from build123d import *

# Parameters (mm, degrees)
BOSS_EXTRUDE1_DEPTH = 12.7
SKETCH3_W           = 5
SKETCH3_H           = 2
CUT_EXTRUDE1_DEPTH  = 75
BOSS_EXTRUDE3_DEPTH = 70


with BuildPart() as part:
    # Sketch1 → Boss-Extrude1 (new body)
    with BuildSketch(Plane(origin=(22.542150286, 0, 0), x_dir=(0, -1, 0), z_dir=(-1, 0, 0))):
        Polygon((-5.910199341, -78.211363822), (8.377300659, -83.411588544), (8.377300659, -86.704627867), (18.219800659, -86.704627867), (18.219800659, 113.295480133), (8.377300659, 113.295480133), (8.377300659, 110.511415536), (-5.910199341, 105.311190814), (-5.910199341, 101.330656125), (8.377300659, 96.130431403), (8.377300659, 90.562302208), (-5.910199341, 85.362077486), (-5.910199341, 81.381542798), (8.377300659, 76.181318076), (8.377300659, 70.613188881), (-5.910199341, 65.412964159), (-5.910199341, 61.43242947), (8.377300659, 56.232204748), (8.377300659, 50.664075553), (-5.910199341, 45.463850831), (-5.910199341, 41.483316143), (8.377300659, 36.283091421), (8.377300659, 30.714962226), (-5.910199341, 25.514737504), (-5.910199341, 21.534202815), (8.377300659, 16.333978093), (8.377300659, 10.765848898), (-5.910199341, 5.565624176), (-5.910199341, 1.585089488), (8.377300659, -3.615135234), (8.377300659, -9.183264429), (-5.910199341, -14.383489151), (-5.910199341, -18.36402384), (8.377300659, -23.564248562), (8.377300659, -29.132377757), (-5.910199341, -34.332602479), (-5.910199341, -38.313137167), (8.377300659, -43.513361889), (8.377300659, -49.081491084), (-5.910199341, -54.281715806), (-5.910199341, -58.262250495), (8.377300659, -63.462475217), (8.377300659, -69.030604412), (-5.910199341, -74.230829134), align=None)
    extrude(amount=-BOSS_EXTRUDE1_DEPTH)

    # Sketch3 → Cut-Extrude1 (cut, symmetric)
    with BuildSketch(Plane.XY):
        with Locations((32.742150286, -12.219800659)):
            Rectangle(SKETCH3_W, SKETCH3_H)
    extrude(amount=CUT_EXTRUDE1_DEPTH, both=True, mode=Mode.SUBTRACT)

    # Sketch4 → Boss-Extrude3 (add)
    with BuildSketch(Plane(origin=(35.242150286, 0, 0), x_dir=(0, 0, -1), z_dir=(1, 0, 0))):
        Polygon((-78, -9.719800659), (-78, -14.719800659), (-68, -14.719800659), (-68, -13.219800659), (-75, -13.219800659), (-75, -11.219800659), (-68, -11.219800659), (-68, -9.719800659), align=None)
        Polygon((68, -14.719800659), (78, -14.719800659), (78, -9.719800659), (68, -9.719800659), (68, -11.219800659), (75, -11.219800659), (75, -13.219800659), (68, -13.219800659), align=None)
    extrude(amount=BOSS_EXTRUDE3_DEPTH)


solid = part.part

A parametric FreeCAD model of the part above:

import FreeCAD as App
import Part
import Sketcher

V = App.Vector
Q = App.Units.Quantity


def add_polygon(sketch, points):
    """Adds a closed chain of lines whose ends are joined by coincident constraints."""
    first, n = sketch.GeometryCount, len(points)
    for a, b in zip(points, points[1:] + points[:1]):
        sketch.addGeometry(Part.LineSegment(App.Vector(*a, 0), App.Vector(*b, 0)), False)
    for i in range(n):
        sketch.addConstraint(Sketcher.Constraint("Coincident", first + i, 2, first + (i + 1) % n, 1))

doc = App.newDocument("Part")
body = doc.addObject("PartDesign::Body", "Body")

sketch1 = body.newObject("Sketcher::SketchObject", "Sketch")
sketch1.AttachmentSupport = (doc.getObject("YZ_Plane"), [""])
sketch1.MapMode = "FlatFace"
sketch1.AttachmentOffset = App.Placement(V(0, 0, 22.54215), App.Rotation())
add_polygon(sketch1, [(5.910199, -78.211364), (-8.377301, -83.411589), (-8.377301, -86.704628), (-18.219801, -86.704628), (-18.219801, 113.29548), (-8.377301, 113.29548), (-8.377301, 110.511416), (5.910199, 105.311191), (5.910199, 101.330656), (-8.377301, 96.130431), (-8.377301, 90.562302), (5.910199, 85.362077), (5.910199, 81.381543), (-8.377301, 76.181318), (-8.377301, 70.613189), (5.910199, 65.412964), (5.910199, 61.432429), (-8.377301, 56.232205), (-8.377301, 50.664076), (5.910199, 45.463851), (5.910199, 41.483316), (-8.377301, 36.283091), (-8.377301, 30.714962), (5.910199, 25.514738), (5.910199, 21.534203), (-8.377301, 16.333978), (-8.377301, 10.765849), (5.910199, 5.565624), (5.910199, 1.585089), (-8.377301, -3.615135), (-8.377301, -9.183264), (5.910199, -14.383489), (5.910199, -18.364024), (-8.377301, -23.564249), (-8.377301, -29.132378), (5.910199, -34.332602), (5.910199, -38.313137), (-8.377301, -43.513362), (-8.377301, -49.081491), (5.910199, -54.281716), (5.910199, -58.26225), (-8.377301, -63.462475), (-8.377301, -69.030604), (5.910199, -74.230829)])
sketch1.addConstraint(Sketcher.Constraint("Vertical", 1))
sketch1.addConstraint(Sketcher.Constraint("Horizontal", 2))
sketch1.addConstraint(Sketcher.Constraint("Vertical", 3))
sketch1.addConstraint(Sketcher.Constraint("Horizontal", 4))
sketch1.addConstraint(Sketcher.Constraint("Vertical", 5))
sketch1.addConstraint(Sketcher.Constraint("Vertical", 7))
sketch1.addConstraint(Sketcher.Constraint("Vertical", 9))
sketch1.addConstraint(Sketcher.Constraint("Vertical", 11))
sketch1.addConstraint(Sketcher.Constraint("Vertical", 13))
sketch1.addConstraint(Sketcher.Constraint("Vertical", 15))
sketch1.addConstraint(Sketcher.Constraint("Vertical", 17))
sketch1.addConstraint(Sketcher.Constraint("Vertical", 19))
sketch1.addConstraint(Sketcher.Constraint("Vertical", 21))
sketch1.addConstraint(Sketcher.Constraint("Vertical", 23))
sketch1.addConstraint(Sketcher.Constraint("Vertical", 25))
sketch1.addConstraint(Sketcher.Constraint("Vertical", 27))
sketch1.addConstraint(Sketcher.Constraint("Vertical", 29))
sketch1.addConstraint(Sketcher.Constraint("Vertical", 31))
sketch1.addConstraint(Sketcher.Constraint("Vertical", 33))
sketch1.addConstraint(Sketcher.Constraint("Vertical", 35))
sketch1.addConstraint(Sketcher.Constraint("Vertical", 37))
sketch1.addConstraint(Sketcher.Constraint("Vertical", 39))
sketch1.addConstraint(Sketcher.Constraint("Vertical", 41))
sketch1.addConstraint(Sketcher.Constraint("Vertical", 43))
sketch1.addConstraint(Sketcher.Constraint("Parallel", 0, 8))
sketch1.addConstraint(Sketcher.Constraint("Parallel", 6, 10))
sketch1.addConstraint(Sketcher.Constraint("Parallel", 8, 12))
sketch1.addConstraint(Sketcher.Constraint("Parallel", 10, 14))
sketch1.addConstraint(Sketcher.Constraint("Parallel", 12, 16))
sketch1.addConstraint(Sketcher.Constraint("Parallel", 14, 18))
sketch1.addConstraint(Sketcher.Constraint("Parallel", 16, 20))
sketch1.addConstraint(Sketcher.Constraint("Parallel", 18, 22))
sketch1.addConstraint(Sketcher.Constraint("Parallel", 20, 24))
sketch1.addConstraint(Sketcher.Constraint("Parallel", 22, 26))
sketch1.addConstraint(Sketcher.Constraint("Parallel", 24, 28))
sketch1.addConstraint(Sketcher.Constraint("Parallel", 26, 30))
sketch1.addConstraint(Sketcher.Constraint("Parallel", 28, 32))
sketch1.addConstraint(Sketcher.Constraint("Parallel", 30, 34))
sketch1.addConstraint(Sketcher.Constraint("Parallel", 32, 36))
sketch1.addConstraint(Sketcher.Constraint("Parallel", 34, 38))
sketch1.addConstraint(Sketcher.Constraint("Parallel", 36, 40))
sketch1.addConstraint(Sketcher.Constraint("Parallel", 38, 42))
sketch1.addConstraint(Sketcher.Constraint("Vertical", 1, 2, 4, 2))
sketch1.addConstraint(Sketcher.Constraint("Vertical", 5, 2, 8, 2))
sketch1.addConstraint(Sketcher.Constraint("Vertical", 7, 2, 10, 2))
sketch1.addConstraint(Sketcher.Constraint("Vertical", 9, 2, 12, 2))
sketch1.addConstraint(Sketcher.Constraint("Vertical", 11, 2, 14, 2))
sketch1.addConstraint(Sketcher.Constraint("Vertical", 13, 2, 16, 2))
sketch1.addConstraint(Sketcher.Constraint("Vertical", 15, 2, 18, 2))
sketch1.addConstraint(Sketcher.Constraint("Vertical", 17, 2, 20, 2))
sketch1.addConstraint(Sketcher.Constraint("Vertical", 19, 2, 22, 2))
sketch1.addConstraint(Sketcher.Constraint("Vertical", 21, 2, 24, 2))
sketch1.addConstraint(Sketcher.Constraint("Vertical", 23, 2, 26, 2))
sketch1.addConstraint(Sketcher.Constraint("Vertical", 25, 2, 28, 2))
sketch1.addConstraint(Sketcher.Constraint("Vertical", 27, 2, 30, 2))
sketch1.addConstraint(Sketcher.Constraint("Vertical", 29, 2, 32, 2))
sketch1.addConstraint(Sketcher.Constraint("Vertical", 31, 2, 34, 2))
sketch1.addConstraint(Sketcher.Constraint("Vertical", 33, 2, 36, 2))
sketch1.addConstraint(Sketcher.Constraint("Vertical", 35, 2, 38, 2))
sketch1.addConstraint(Sketcher.Constraint("Vertical", 37, 2, 40, 2))
sketch1.addConstraint(Sketcher.Constraint("Vertical", 39, 2, 42, 2))
sketch1.addConstraint(Sketcher.Constraint("Equal", 7, 11))
sketch1.addConstraint(Sketcher.Constraint("Equal", 9, 13))
sketch1.addConstraint(Sketcher.Constraint("Equal", 11, 15))
sketch1.addConstraint(Sketcher.Constraint("Equal", 13, 17))
sketch1.addConstraint(Sketcher.Constraint("Equal", 15, 19))
sketch1.addConstraint(Sketcher.Constraint("Equal", 17, 21))
sketch1.addConstraint(Sketcher.Constraint("Equal", 19, 23))
sketch1.addConstraint(Sketcher.Constraint("Equal", 21, 25))
sketch1.addConstraint(Sketcher.Constraint("Equal", 23, 27))
sketch1.addConstraint(Sketcher.Constraint("Equal", 25, 29))
sketch1.addConstraint(Sketcher.Constraint("Equal", 27, 31))
sketch1.addConstraint(Sketcher.Constraint("Equal", 29, 33))
sketch1.addConstraint(Sketcher.Constraint("Equal", 31, 35))
sketch1.addConstraint(Sketcher.Constraint("Equal", 33, 37))
sketch1.addConstraint(Sketcher.Constraint("Equal", 35, 39))
sketch1.addConstraint(Sketcher.Constraint("Equal", 37, 41))
sketch1.addConstraint(Sketcher.Constraint("Equal", 39, 43))
sketch1.addConstraint(Sketcher.Constraint("Equal", 0, 6))
sketch1.addConstraint(Sketcher.Constraint("Angle", 0, Q("-160 deg")))
sketch1.addConstraint(Sketcher.Constraint("DistanceX", 3, 2, 6, 2, Q("24.13 mm")))
sketch1.addConstraint(Sketcher.Constraint("DistanceX", 2, 2, 2, 1, Q("9.8425 mm")))
sketch1.addConstraint(Sketcher.Constraint("DistanceY", 1, 2, 1, 1, Q("3.293039 mm")))
sketch1.addConstraint(Sketcher.Constraint("DistanceY", 3, 1, 3, 2, Q("200.000108 mm")))
sketch1.addConstraint(Sketcher.Constraint("DistanceY", 9, 2, 9, 1, Q("5.568129 mm")))
sketch1.addConstraint(Sketcher.Constraint("DistanceX", 0, 2, -1, 1, Q("8.377301 mm")))
sketch1.addConstraint(Sketcher.Constraint("DistanceY", 1, 2, 42, 2, Q("12.473799 mm")))
sketch1.addConstraint(Sketcher.Constraint("DistanceY", 0, 2, -1, 1, Q("83.411589 mm")))
pad1 = body.newObject("PartDesign::Pad", "Pad")
pad1.Profile = sketch1
pad1.Length = 12.7

sketch2 = body.newObject("Sketcher::SketchObject", "Sketch001")
sketch2.AttachmentSupport = (doc.getObject("XY_Plane"), [""])
sketch2.MapMode = "FlatFace"
add_polygon(sketch2, [(30.24215, -11.219801), (30.24215, -13.219801), (35.24215, -13.219801), (35.24215, -11.219801)])
sketch2.addConstraint(Sketcher.Constraint("Vertical", 0))
sketch2.addConstraint(Sketcher.Constraint("Horizontal", 1))
sketch2.addConstraint(Sketcher.Constraint("Vertical", 2))
sketch2.addConstraint(Sketcher.Constraint("Horizontal", 3))
sketch2.addConstraint(Sketcher.Constraint("DistanceX", 1, 1, 1, 2, Q("5 mm")))
sketch2.addConstraint(Sketcher.Constraint("DistanceY", 0, 2, 0, 1, Q("2 mm")))
sketch2.addConstraint(Sketcher.Constraint("DistanceY", 0, 2, -1, 1, Q("13.219801 mm")))
sketch2.addConstraint(Sketcher.Constraint("DistanceX", -1, 1, 0, 2, Q("30.24215 mm")))
pocket1 = body.newObject("PartDesign::Pocket", "Pocket")
pocket1.Profile = sketch2
pocket1.Length = 150
pocket1.Midplane = True

sketch3 = body.newObject("Sketcher::SketchObject", "Sketch002")
sketch3.AttachmentSupport = (doc.getObject("YZ_Plane"), [""])
sketch3.MapMode = "FlatFace"
sketch3.AttachmentOffset = App.Placement(V(0, 0, 35.24215), App.Rotation())
add_polygon(sketch3, [(-9.719801, 78), (-14.719801, 78), (-14.719801, 68), (-13.219801, 68), (-13.219801, 75), (-11.219801, 75), (-11.219801, 68), (-9.719801, 68)])
add_polygon(sketch3, [(-14.719801, -68), (-14.719801, -78), (-9.719801, -78), (-9.719801, -68), (-11.219801, -68), (-11.219801, -75), (-13.219801, -75), (-13.219801, -68)])
sketch3.addConstraint(Sketcher.Constraint("Horizontal", 0))
sketch3.addConstraint(Sketcher.Constraint("Vertical", 1))
sketch3.addConstraint(Sketcher.Constraint("Horizontal", 2))
sketch3.addConstraint(Sketcher.Constraint("Vertical", 3))
sketch3.addConstraint(Sketcher.Constraint("Horizontal", 4))
sketch3.addConstraint(Sketcher.Constraint("Vertical", 5))
sketch3.addConstraint(Sketcher.Constraint("Horizontal", 6))
sketch3.addConstraint(Sketcher.Constraint("Vertical", 7))
sketch3.addConstraint(Sketcher.Constraint("Vertical", 8))
sketch3.addConstraint(Sketcher.Constraint("Horizontal", 9))
sketch3.addConstraint(Sketcher.Constraint("Vertical", 10))
sketch3.addConstraint(Sketcher.Constraint("Horizontal", 11))
sketch3.addConstraint(Sketcher.Constraint("Vertical", 12))
sketch3.addConstraint(Sketcher.Constraint("Horizontal", 13))
sketch3.addConstraint(Sketcher.Constraint("Vertical", 14))
sketch3.addConstraint(Sketcher.Constraint("Horizontal", 15))
sketch3.addConstraint(Sketcher.Constraint("Symmetric", 0, 2, 8, 2, -1))
sketch3.addConstraint(Sketcher.Constraint("Symmetric", 6, 2, 10, 2, -1))
sketch3.addConstraint(Sketcher.Constraint("Symmetric", 4, 2, 12, 2, -1))
sketch3.addConstraint(Sketcher.Constraint("Symmetric", 2, 2, 14, 2, -1))
sketch3.addConstraint(Sketcher.Constraint("Horizontal", 2, 2, 5, 2))
sketch3.addConstraint(Sketcher.Constraint("Equal", 2, 6))
sketch3.addConstraint(Sketcher.Constraint("DistanceX", 0, 2, 0, 1, Q("5 mm")))
sketch3.addConstraint(Sketcher.Constraint("DistanceX", 4, 1, 4, 2, Q("2 mm")))
sketch3.addConstraint(Sketcher.Constraint("DistanceY", 1, 2, 1, 1, Q("10 mm")))
sketch3.addConstraint(Sketcher.Constraint("DistanceY", 3, 1, 3, 2, Q("7 mm")))
sketch3.addConstraint(Sketcher.Constraint("DistanceY", -1, 1, 0, 2, Q("78 mm")))
sketch3.addConstraint(Sketcher.Constraint("DistanceX", 0, 2, -1, 1, Q("14.719801 mm")))
pad2 = body.newObject("PartDesign::Pad", "Pad001")
pad2.Profile = sketch3
pad2.Length = 70

doc.recompute()
